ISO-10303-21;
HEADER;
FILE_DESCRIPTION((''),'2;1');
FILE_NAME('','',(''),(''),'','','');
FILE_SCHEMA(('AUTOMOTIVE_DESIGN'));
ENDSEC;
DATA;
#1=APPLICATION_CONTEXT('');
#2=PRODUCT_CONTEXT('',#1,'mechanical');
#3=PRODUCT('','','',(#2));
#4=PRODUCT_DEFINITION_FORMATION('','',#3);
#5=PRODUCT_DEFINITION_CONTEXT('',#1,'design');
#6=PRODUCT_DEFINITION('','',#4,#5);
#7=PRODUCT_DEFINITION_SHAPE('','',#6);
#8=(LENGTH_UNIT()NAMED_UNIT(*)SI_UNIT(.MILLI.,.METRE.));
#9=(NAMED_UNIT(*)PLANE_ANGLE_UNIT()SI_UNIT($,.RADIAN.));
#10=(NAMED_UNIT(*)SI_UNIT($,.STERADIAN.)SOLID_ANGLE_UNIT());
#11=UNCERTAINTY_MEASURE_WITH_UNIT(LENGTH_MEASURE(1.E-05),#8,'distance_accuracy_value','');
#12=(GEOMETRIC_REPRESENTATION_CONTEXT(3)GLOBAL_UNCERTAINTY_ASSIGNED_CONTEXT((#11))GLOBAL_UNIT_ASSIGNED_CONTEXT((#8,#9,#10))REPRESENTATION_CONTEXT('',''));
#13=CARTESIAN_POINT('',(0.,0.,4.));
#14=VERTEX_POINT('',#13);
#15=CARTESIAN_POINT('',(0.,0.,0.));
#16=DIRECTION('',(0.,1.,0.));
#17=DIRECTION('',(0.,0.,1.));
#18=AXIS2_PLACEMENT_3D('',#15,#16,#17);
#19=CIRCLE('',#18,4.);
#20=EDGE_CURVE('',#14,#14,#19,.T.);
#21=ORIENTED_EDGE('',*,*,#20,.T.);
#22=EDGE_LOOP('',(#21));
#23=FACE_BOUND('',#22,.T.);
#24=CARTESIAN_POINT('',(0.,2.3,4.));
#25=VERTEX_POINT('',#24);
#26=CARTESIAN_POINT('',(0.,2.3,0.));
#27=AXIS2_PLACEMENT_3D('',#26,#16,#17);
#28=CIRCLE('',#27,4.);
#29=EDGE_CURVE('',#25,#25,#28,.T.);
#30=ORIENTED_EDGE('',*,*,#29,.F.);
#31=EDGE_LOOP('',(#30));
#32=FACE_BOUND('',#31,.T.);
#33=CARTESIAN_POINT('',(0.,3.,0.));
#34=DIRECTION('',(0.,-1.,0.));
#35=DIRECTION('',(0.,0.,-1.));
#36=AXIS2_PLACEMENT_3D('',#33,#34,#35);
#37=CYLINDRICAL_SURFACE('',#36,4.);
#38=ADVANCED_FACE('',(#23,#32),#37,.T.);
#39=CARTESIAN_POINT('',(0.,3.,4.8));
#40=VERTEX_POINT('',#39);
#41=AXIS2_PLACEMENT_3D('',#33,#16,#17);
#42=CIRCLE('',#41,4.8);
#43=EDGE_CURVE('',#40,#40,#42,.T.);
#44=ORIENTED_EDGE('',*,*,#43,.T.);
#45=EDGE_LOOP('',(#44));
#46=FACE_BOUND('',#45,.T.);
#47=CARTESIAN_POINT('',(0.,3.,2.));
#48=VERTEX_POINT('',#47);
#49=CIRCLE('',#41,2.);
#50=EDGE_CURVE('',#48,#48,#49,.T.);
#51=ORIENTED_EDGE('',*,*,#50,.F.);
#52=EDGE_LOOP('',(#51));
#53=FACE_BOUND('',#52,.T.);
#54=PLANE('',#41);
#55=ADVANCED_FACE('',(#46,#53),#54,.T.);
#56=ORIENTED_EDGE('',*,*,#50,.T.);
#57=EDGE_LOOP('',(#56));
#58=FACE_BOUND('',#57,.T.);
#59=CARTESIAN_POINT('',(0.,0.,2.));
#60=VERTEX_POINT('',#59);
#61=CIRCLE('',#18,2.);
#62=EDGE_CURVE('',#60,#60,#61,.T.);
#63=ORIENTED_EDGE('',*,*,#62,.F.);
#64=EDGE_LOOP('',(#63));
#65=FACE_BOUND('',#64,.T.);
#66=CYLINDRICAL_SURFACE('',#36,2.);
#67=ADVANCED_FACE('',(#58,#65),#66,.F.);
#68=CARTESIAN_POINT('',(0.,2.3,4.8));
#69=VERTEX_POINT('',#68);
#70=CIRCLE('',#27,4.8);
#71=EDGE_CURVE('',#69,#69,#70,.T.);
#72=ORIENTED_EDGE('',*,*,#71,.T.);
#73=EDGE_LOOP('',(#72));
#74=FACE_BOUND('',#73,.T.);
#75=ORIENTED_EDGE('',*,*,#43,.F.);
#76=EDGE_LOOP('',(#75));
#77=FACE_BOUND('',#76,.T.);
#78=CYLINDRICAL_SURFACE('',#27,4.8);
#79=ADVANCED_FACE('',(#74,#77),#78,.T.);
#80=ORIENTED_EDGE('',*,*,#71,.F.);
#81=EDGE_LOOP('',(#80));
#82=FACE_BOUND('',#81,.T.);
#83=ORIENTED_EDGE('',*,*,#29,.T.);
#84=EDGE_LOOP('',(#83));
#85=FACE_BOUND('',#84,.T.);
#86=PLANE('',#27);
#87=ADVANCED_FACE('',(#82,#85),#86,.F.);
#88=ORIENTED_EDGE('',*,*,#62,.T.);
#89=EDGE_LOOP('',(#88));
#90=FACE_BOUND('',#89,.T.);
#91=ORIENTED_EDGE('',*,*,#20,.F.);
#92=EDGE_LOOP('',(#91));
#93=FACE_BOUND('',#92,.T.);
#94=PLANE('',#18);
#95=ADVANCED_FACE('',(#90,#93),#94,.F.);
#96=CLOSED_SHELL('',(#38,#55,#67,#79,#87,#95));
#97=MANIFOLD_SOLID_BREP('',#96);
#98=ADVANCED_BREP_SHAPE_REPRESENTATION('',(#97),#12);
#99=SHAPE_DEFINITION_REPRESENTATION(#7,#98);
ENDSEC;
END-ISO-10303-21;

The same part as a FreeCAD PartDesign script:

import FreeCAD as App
import Part
import Sketcher

V = App.Vector

doc = App.newDocument("Part")
body = doc.addObject("PartDesign::Body", "Body")

sketch1 = body.newObject("Sketcher::SketchObject", "Sketch")
sketch1.AttachmentSupport = (doc.getObject("XZ_Plane"), [""])
sketch1.MapMode = "FlatFace"
sketch1.addGeometry([
    Part.Circle(V(0, 0, 0), V(0, 0, 1), 4),
    Part.Circle(V(0, 0, 0), V(0, 0, 1), 2),
], False)
sketch1.addConstraint([
    Sketcher.Constraint("Coincident", 0, 3, -1, 1),
    Sketcher.Constraint("Coincident", 1, 3, -1, 1),
    Sketcher.Constraint("Diameter", 0, 8.0),
    Sketcher.Constraint("Diameter", 1, 4.0),
])
pad1 = body.newObject("PartDesign::Pad", "Pad")
pad1.Profile = sketch1
pad1.Length = 3
pad1.Reversed = True

sketch2 = body.newObject("Sketcher::SketchObject", "Sketch001")
sketch2.AttachmentSupport = (doc.getObject("XZ_Plane"), [""])
sketch2.MapMode = "FlatFace"
sketch2.AttachmentOffset = App.Placement(V(0, 0, -3), App.Rotation())
sketch2.addGeometry([
    Part.Circle(V(0, 0, 0), V(0, 0, 1), 4.8),
    Part.Circle(V(0, 0, 0), V(0, 0, 1), 2.5),
], False)
sketch2.addConstraint([
    Sketcher.Constraint("Coincident", 0, 3, -1, 1),
    Sketcher.Constraint("Coincident", 1, 3, -1, 1),
    Sketcher.Constraint("Diameter", 1, 5.0),
    Sketcher.Constraint("Diameter", 0, 9.6),
])
pad2 = body.newObject("PartDesign::Pad", "Pad001")
pad2.Profile = sketch2
pad2.Length = 0.7

doc.recompute()
